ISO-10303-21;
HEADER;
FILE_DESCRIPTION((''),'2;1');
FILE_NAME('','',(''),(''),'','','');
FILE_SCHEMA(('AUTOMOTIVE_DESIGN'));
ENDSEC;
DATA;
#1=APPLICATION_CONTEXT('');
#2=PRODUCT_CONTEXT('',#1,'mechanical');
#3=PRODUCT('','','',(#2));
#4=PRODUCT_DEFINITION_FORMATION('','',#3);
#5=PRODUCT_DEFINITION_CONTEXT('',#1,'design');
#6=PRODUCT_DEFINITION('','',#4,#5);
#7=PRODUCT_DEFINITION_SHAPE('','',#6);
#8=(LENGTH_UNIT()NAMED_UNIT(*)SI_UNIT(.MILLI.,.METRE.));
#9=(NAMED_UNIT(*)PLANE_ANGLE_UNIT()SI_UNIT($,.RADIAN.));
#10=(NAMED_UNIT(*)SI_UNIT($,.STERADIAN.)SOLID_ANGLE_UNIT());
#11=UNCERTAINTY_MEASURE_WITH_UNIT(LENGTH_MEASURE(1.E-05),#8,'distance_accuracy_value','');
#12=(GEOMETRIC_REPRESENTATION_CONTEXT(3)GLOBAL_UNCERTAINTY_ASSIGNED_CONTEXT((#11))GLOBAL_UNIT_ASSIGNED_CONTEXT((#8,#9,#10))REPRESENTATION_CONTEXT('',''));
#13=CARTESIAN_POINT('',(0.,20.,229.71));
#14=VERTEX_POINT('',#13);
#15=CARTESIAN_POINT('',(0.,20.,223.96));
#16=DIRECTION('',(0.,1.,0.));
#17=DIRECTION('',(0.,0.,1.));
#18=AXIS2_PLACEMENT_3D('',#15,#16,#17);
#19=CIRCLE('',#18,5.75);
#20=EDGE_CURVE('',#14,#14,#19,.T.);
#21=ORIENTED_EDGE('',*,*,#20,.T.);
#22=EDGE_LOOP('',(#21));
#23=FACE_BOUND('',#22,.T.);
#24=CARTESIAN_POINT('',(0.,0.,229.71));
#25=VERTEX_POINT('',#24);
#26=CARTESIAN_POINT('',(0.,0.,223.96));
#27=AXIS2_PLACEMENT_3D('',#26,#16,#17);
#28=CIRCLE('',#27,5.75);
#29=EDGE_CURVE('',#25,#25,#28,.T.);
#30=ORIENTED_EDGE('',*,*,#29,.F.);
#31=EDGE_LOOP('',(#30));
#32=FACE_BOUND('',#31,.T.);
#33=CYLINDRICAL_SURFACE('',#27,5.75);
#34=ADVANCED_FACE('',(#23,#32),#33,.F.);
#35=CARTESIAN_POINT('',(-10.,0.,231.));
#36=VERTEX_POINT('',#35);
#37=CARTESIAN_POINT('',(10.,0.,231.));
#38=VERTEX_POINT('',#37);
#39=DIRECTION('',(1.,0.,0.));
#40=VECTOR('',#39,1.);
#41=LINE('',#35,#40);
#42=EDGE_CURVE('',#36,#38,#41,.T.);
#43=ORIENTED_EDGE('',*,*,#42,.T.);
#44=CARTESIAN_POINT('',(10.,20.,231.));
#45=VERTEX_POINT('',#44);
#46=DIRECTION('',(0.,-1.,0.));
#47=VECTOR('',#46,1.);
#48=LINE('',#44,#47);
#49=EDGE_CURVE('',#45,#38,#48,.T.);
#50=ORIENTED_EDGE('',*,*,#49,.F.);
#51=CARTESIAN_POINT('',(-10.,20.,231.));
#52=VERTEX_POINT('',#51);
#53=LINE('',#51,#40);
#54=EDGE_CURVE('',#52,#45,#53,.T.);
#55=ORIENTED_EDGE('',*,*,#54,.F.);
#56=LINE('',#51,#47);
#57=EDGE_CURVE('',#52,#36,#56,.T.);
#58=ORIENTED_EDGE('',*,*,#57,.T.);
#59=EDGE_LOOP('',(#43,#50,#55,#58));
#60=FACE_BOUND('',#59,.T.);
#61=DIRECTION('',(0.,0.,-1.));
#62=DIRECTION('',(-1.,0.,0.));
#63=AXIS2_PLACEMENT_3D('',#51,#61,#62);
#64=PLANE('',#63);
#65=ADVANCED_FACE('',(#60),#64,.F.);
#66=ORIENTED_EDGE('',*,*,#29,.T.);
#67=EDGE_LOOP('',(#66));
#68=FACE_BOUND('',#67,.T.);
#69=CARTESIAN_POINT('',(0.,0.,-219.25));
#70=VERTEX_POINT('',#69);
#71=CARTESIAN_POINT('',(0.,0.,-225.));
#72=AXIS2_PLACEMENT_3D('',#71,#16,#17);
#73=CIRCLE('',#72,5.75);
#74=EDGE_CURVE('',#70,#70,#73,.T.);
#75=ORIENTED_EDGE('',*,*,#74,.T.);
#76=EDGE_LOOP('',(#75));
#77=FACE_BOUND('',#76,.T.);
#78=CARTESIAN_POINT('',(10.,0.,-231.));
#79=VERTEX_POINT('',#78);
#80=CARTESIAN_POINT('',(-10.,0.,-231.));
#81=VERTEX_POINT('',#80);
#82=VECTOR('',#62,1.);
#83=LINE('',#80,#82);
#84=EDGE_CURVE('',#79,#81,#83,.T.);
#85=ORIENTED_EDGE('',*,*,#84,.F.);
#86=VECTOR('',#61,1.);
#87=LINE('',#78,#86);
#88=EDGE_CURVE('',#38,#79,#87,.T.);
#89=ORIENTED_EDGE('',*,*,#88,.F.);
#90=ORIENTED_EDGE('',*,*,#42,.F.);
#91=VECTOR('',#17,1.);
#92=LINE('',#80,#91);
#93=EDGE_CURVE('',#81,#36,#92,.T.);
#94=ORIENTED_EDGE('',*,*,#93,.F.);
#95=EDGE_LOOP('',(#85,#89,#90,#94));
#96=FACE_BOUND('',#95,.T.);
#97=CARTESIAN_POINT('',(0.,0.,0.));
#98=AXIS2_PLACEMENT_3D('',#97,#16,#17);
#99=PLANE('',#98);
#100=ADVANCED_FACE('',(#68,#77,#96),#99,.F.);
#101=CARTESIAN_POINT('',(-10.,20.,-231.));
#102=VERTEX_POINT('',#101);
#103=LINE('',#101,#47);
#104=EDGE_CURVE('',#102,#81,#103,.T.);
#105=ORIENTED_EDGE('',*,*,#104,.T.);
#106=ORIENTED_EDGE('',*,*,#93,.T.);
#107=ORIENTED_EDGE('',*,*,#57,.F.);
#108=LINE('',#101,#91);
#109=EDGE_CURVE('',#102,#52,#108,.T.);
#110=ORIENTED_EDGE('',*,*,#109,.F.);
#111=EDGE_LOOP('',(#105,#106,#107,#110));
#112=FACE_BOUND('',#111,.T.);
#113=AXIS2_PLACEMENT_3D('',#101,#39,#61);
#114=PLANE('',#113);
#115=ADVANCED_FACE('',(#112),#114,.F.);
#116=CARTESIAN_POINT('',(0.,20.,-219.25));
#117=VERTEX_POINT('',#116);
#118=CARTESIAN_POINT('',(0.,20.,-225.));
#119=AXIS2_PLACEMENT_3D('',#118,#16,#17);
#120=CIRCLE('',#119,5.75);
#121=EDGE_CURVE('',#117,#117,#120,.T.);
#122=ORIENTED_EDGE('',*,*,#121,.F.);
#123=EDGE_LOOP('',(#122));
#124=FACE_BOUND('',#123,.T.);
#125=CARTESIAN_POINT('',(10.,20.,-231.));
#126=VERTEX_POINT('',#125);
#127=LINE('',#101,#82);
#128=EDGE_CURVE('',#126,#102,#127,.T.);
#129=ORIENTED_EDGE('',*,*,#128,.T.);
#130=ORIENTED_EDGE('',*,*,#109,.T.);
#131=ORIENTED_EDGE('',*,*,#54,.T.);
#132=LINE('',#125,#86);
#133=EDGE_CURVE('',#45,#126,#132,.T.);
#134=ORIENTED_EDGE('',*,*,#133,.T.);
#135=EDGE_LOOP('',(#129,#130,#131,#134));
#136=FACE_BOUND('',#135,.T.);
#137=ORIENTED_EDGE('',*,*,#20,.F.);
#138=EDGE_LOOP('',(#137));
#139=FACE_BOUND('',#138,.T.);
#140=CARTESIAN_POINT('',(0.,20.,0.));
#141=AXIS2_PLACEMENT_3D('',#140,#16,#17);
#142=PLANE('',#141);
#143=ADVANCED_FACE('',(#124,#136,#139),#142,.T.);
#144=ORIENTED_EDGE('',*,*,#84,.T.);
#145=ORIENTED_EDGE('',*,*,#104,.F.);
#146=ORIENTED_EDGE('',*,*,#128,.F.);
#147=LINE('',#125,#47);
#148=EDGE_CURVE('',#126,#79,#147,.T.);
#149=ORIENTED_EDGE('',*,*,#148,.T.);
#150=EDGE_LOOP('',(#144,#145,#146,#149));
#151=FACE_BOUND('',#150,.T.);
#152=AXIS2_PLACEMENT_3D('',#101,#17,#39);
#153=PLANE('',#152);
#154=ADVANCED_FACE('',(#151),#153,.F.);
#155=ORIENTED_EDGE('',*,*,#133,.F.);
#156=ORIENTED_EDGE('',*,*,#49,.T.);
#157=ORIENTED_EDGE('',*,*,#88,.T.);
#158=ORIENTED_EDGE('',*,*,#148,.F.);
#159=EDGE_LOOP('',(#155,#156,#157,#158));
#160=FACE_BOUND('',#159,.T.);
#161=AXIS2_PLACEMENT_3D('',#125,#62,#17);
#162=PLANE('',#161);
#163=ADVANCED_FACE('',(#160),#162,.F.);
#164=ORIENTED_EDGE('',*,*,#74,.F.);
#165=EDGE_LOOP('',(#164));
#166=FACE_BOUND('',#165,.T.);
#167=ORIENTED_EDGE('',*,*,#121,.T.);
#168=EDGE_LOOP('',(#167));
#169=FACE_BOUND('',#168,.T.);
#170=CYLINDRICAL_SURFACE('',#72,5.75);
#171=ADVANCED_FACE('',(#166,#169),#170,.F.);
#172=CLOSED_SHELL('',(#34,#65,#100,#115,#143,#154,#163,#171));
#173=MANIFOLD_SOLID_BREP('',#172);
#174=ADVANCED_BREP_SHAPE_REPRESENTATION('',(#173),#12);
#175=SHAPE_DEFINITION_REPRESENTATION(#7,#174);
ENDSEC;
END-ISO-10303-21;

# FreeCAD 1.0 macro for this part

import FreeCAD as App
import Part
import Sketcher
Q = App.Units.Quantity

doc = App.newDocument("Part")
params = doc.addObject("Spreadsheet::Sheet", "Params")
for row, (alias, value) in enumerate([
    ("sketch1_width", "20 mm"),
    ("sketch1_height", "462 mm"),
    ("pad1_length", "20 mm"),
    ("sketch2_diameter", "11.5 mm"),
], start=1):
    params.set(f"A{row}", alias)
    params.set(f"B{row}", "=" + value)
    params.setAlias(f"B{row}", alias)

body = doc.addObject("PartDesign::Body", "Body")

# Sketch on XZ plane
sketch1 = doc.addObject("Sketcher::SketchObject", "Sketch")
body.addObject(sketch1)
sketch1.AttachmentSupport = (doc.XZ_Plane, [""])
sketch1.MapMode = "FlatFace"
sketch1.addGeometry([
    Part.LineSegment(App.Vector(-10, -231, 0), App.Vector(-10, 231, 0)),
    Part.LineSegment(App.Vector(-10, 231, 0), App.Vector(10, 231, 0)),
    Part.LineSegment(App.Vector(10, 231, 0), App.Vector(10, -231, 0)),
    Part.LineSegment(App.Vector(10, -231, 0), App.Vector(-10, -231, 0)),
], False)
sketch1.addConstraint([
    Sketcher.Constraint("Coincident", 0, 2, 1, 1),
    Sketcher.Constraint("Coincident", 1, 2, 2, 1),
    Sketcher.Constraint("Coincident", 2, 2, 3, 1),
    Sketcher.Constraint("Coincident", 3, 2, 0, 1),
    Sketcher.Constraint("Vertical", 0),
    Sketcher.Constraint("Horizontal", 1),
    Sketcher.Constraint("Vertical", 2),
    Sketcher.Constraint("Horizontal", 3),
    Sketcher.Constraint("Symmetric", 0, 2, 2, 2, -1, 1),
    Sketcher.Constraint("DistanceX", 1, 1, 1, 2, Q("20 mm")),
    Sketcher.Constraint("DistanceY", 0, 1, 0, 2, Q("462 mm")),
])
sketch1.setExpression("Constraints[9]", "Params.sketch1_width")
sketch1.setExpression("Constraints[10]", "Params.sketch1_height")
pad1 = doc.addObject("PartDesign::Pad", "Pad")
body.addObject(pad1)
pad1.Profile = sketch1
pad1.setExpression("Length", "Params.pad1_length")
pad1.Reversed = True

# Sketch on XZ plane
sketch2 = doc.addObject("Sketcher::SketchObject", "Sketch001")
body.addObject(sketch2)
sketch2.AttachmentSupport = (doc.XZ_Plane, [""])
sketch2.MapMode = "FlatFace"
sketch2.AttachmentOffset = App.Placement(App.Vector(0, 0, -20), App.Rotation())
sketch2.addGeometry([
    Part.Circle(App.Vector(0, -225, 0), App.Vector(0, 0, 1), 6),
    Part.Circle(App.Vector(0, 224, 0), App.Vector(0, 0, 1), 6),
], False)
sketch2.addConstraint([
    Sketcher.Constraint("Equal", 0, 1),
    Sketcher.Constraint("PointOnObject", 0, 3, -2),
    Sketcher.Constraint("PointOnObject", 1, 3, -2),
    Sketcher.Constraint("Diameter", 0, Q("11.5 mm")),
    Sketcher.Constraint("DistanceY", 0, 3, -1, 1, Q("225 mm")),
    Sketcher.Constraint("DistanceY", -1, 1, 1, 3, Q("223.96 mm")),
])
sketch2.setExpression("Constraints[3]", "Params.sketch2_diameter")
pocket1 = doc.addObject("PartDesign::Pocket", "Pocket")
body.addObject(pocket1)
pocket1.Profile = sketch2
pocket1.Type = "ThroughAll"
pocket1.Reversed = True

doc.recompute()
